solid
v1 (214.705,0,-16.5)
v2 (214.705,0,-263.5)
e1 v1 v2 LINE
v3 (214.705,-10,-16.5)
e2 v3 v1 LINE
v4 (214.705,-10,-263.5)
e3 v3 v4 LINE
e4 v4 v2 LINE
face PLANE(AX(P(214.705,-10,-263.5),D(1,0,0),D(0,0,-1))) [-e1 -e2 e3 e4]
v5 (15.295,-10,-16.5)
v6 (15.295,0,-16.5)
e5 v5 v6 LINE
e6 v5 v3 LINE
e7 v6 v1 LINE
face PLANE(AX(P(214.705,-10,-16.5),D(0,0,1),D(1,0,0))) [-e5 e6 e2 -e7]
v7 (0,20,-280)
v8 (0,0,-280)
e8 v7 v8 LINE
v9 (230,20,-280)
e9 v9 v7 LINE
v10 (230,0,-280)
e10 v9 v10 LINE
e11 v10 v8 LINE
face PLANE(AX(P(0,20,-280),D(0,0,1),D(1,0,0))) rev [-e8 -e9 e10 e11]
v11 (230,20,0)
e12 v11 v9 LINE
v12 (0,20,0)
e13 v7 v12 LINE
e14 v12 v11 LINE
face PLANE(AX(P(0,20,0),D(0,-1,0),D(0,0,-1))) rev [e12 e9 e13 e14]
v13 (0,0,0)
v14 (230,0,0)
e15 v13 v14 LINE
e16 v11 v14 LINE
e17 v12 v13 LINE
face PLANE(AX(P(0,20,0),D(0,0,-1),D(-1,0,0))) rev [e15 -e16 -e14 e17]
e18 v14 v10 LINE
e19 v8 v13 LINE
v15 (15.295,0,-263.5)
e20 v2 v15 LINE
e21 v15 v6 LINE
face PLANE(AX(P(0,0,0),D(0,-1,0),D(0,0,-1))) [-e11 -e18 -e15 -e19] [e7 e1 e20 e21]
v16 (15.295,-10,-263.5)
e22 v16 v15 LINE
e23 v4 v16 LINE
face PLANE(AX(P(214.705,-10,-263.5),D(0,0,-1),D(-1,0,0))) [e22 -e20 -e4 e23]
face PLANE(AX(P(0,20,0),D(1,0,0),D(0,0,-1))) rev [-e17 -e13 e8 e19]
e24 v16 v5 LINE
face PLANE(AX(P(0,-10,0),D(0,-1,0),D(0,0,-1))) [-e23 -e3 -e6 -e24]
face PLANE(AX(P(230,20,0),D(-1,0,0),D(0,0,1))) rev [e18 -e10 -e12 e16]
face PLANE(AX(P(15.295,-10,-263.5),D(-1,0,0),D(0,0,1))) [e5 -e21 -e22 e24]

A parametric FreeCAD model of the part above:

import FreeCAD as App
import Part
import Sketcher
from FreeCAD import Vector

doc = App.newDocument("Part")
body = doc.addObject("PartDesign::Body", "Body")

# Sketch on XZ plane
sketch1 = body.newObject("Sketcher::SketchObject", "Sketch")
sketch1.AttachmentSupport = (doc.getObject("XZ_Plane"), [""])
sketch1.MapMode = "FlatFace"
sketch1.addGeometry([
    Part.LineSegment(Vector(0, -280, 0), Vector(0, 0, 0)),
    Part.LineSegment(Vector(0, 0, 0), Vector(230, 0, 0)),
    Part.LineSegment(Vector(230, 0, 0), Vector(230, -280, 0)),
    Part.LineSegment(Vector(230, -280, 0), Vector(0, -280, 0)),
], False)
sketch1.addConstraint([
    Sketcher.Constraint("Coincident", 0, 2, 1, 1),
    Sketcher.Constraint("Coincident", 1, 2, 2, 1),
    Sketcher.Constraint("Coincident", 2, 2, 3, 1),
    Sketcher.Constraint("Coincident", 3, 2, 0, 1),
    Sketcher.Constraint("Vertical", 0),
    Sketcher.Constraint("Horizontal", 1),
    Sketcher.Constraint("Vertical", 2),
    Sketcher.Constraint("Horizontal", 3),
    Sketcher.Constraint("Coincident", 0, 2, -1, 1),
    Sketcher.Constraint("DistanceX", 1, 1, 1, 2, 230.0),
    Sketcher.Constraint("DistanceY", 0, 1, 0, 2, 280.0),
])
pad1 = body.newObject("PartDesign::Pad", "Pad")
pad1.Profile = sketch1
pad1.Length = 20
pad1.Reversed = True

# Sketch on XZ plane
sketch2 = body.newObject("Sketcher::SketchObject", "Sketch001")
sketch2.AttachmentSupport = (doc.getObject("XZ_Plane"), [""])
sketch2.MapMode = "FlatFace"
sketch2.addGeometry([
    Part.LineSegment(Vector(15, -264, 0), Vector(15, -16, 0)),
    Part.LineSegment(Vector(15, -16, 0), Vector(215, -16, 0)),
    Part.LineSegment(Vector(215, -16, 0), Vector(215, -264, 0)),
    Part.LineSegment(Vector(215, -264, 0), Vector(15, -264, 0)),
], False)
sketch2.addConstraint([
    Sketcher.Constraint("Coincident", 0, 2, 1, 1),
    Sketcher.Constraint("Coincident", 1, 2, 2, 1),
    Sketcher.Constraint("Coincident", 2, 2, 3, 1),
    Sketcher.Constraint("Coincident", 3, 2, 0, 1),
    Sketcher.Constraint("Vertical", 0),
    Sketcher.Constraint("Horizontal", 1),
    Sketcher.Constraint("Vertical", 2),
    Sketcher.Constraint("Horizontal", 3),
    Sketcher.Constraint("DistanceY", 0, 1, 0, 2, 247.0),
    Sketcher.Constraint("DistanceX", 1, 1, 1, 2, 199.41),
    Sketcher.Constraint("DistanceY", 0, 2, -1, 1, 16.5),
    Sketcher.Constraint("DistanceX", -1, 1, 0, 2, 15.295),
])
pad2 = body.newObject("PartDesign::Pad", "Pad001")
pad2.Profile = sketch2
pad2.Length = 10

doc.recompute()
